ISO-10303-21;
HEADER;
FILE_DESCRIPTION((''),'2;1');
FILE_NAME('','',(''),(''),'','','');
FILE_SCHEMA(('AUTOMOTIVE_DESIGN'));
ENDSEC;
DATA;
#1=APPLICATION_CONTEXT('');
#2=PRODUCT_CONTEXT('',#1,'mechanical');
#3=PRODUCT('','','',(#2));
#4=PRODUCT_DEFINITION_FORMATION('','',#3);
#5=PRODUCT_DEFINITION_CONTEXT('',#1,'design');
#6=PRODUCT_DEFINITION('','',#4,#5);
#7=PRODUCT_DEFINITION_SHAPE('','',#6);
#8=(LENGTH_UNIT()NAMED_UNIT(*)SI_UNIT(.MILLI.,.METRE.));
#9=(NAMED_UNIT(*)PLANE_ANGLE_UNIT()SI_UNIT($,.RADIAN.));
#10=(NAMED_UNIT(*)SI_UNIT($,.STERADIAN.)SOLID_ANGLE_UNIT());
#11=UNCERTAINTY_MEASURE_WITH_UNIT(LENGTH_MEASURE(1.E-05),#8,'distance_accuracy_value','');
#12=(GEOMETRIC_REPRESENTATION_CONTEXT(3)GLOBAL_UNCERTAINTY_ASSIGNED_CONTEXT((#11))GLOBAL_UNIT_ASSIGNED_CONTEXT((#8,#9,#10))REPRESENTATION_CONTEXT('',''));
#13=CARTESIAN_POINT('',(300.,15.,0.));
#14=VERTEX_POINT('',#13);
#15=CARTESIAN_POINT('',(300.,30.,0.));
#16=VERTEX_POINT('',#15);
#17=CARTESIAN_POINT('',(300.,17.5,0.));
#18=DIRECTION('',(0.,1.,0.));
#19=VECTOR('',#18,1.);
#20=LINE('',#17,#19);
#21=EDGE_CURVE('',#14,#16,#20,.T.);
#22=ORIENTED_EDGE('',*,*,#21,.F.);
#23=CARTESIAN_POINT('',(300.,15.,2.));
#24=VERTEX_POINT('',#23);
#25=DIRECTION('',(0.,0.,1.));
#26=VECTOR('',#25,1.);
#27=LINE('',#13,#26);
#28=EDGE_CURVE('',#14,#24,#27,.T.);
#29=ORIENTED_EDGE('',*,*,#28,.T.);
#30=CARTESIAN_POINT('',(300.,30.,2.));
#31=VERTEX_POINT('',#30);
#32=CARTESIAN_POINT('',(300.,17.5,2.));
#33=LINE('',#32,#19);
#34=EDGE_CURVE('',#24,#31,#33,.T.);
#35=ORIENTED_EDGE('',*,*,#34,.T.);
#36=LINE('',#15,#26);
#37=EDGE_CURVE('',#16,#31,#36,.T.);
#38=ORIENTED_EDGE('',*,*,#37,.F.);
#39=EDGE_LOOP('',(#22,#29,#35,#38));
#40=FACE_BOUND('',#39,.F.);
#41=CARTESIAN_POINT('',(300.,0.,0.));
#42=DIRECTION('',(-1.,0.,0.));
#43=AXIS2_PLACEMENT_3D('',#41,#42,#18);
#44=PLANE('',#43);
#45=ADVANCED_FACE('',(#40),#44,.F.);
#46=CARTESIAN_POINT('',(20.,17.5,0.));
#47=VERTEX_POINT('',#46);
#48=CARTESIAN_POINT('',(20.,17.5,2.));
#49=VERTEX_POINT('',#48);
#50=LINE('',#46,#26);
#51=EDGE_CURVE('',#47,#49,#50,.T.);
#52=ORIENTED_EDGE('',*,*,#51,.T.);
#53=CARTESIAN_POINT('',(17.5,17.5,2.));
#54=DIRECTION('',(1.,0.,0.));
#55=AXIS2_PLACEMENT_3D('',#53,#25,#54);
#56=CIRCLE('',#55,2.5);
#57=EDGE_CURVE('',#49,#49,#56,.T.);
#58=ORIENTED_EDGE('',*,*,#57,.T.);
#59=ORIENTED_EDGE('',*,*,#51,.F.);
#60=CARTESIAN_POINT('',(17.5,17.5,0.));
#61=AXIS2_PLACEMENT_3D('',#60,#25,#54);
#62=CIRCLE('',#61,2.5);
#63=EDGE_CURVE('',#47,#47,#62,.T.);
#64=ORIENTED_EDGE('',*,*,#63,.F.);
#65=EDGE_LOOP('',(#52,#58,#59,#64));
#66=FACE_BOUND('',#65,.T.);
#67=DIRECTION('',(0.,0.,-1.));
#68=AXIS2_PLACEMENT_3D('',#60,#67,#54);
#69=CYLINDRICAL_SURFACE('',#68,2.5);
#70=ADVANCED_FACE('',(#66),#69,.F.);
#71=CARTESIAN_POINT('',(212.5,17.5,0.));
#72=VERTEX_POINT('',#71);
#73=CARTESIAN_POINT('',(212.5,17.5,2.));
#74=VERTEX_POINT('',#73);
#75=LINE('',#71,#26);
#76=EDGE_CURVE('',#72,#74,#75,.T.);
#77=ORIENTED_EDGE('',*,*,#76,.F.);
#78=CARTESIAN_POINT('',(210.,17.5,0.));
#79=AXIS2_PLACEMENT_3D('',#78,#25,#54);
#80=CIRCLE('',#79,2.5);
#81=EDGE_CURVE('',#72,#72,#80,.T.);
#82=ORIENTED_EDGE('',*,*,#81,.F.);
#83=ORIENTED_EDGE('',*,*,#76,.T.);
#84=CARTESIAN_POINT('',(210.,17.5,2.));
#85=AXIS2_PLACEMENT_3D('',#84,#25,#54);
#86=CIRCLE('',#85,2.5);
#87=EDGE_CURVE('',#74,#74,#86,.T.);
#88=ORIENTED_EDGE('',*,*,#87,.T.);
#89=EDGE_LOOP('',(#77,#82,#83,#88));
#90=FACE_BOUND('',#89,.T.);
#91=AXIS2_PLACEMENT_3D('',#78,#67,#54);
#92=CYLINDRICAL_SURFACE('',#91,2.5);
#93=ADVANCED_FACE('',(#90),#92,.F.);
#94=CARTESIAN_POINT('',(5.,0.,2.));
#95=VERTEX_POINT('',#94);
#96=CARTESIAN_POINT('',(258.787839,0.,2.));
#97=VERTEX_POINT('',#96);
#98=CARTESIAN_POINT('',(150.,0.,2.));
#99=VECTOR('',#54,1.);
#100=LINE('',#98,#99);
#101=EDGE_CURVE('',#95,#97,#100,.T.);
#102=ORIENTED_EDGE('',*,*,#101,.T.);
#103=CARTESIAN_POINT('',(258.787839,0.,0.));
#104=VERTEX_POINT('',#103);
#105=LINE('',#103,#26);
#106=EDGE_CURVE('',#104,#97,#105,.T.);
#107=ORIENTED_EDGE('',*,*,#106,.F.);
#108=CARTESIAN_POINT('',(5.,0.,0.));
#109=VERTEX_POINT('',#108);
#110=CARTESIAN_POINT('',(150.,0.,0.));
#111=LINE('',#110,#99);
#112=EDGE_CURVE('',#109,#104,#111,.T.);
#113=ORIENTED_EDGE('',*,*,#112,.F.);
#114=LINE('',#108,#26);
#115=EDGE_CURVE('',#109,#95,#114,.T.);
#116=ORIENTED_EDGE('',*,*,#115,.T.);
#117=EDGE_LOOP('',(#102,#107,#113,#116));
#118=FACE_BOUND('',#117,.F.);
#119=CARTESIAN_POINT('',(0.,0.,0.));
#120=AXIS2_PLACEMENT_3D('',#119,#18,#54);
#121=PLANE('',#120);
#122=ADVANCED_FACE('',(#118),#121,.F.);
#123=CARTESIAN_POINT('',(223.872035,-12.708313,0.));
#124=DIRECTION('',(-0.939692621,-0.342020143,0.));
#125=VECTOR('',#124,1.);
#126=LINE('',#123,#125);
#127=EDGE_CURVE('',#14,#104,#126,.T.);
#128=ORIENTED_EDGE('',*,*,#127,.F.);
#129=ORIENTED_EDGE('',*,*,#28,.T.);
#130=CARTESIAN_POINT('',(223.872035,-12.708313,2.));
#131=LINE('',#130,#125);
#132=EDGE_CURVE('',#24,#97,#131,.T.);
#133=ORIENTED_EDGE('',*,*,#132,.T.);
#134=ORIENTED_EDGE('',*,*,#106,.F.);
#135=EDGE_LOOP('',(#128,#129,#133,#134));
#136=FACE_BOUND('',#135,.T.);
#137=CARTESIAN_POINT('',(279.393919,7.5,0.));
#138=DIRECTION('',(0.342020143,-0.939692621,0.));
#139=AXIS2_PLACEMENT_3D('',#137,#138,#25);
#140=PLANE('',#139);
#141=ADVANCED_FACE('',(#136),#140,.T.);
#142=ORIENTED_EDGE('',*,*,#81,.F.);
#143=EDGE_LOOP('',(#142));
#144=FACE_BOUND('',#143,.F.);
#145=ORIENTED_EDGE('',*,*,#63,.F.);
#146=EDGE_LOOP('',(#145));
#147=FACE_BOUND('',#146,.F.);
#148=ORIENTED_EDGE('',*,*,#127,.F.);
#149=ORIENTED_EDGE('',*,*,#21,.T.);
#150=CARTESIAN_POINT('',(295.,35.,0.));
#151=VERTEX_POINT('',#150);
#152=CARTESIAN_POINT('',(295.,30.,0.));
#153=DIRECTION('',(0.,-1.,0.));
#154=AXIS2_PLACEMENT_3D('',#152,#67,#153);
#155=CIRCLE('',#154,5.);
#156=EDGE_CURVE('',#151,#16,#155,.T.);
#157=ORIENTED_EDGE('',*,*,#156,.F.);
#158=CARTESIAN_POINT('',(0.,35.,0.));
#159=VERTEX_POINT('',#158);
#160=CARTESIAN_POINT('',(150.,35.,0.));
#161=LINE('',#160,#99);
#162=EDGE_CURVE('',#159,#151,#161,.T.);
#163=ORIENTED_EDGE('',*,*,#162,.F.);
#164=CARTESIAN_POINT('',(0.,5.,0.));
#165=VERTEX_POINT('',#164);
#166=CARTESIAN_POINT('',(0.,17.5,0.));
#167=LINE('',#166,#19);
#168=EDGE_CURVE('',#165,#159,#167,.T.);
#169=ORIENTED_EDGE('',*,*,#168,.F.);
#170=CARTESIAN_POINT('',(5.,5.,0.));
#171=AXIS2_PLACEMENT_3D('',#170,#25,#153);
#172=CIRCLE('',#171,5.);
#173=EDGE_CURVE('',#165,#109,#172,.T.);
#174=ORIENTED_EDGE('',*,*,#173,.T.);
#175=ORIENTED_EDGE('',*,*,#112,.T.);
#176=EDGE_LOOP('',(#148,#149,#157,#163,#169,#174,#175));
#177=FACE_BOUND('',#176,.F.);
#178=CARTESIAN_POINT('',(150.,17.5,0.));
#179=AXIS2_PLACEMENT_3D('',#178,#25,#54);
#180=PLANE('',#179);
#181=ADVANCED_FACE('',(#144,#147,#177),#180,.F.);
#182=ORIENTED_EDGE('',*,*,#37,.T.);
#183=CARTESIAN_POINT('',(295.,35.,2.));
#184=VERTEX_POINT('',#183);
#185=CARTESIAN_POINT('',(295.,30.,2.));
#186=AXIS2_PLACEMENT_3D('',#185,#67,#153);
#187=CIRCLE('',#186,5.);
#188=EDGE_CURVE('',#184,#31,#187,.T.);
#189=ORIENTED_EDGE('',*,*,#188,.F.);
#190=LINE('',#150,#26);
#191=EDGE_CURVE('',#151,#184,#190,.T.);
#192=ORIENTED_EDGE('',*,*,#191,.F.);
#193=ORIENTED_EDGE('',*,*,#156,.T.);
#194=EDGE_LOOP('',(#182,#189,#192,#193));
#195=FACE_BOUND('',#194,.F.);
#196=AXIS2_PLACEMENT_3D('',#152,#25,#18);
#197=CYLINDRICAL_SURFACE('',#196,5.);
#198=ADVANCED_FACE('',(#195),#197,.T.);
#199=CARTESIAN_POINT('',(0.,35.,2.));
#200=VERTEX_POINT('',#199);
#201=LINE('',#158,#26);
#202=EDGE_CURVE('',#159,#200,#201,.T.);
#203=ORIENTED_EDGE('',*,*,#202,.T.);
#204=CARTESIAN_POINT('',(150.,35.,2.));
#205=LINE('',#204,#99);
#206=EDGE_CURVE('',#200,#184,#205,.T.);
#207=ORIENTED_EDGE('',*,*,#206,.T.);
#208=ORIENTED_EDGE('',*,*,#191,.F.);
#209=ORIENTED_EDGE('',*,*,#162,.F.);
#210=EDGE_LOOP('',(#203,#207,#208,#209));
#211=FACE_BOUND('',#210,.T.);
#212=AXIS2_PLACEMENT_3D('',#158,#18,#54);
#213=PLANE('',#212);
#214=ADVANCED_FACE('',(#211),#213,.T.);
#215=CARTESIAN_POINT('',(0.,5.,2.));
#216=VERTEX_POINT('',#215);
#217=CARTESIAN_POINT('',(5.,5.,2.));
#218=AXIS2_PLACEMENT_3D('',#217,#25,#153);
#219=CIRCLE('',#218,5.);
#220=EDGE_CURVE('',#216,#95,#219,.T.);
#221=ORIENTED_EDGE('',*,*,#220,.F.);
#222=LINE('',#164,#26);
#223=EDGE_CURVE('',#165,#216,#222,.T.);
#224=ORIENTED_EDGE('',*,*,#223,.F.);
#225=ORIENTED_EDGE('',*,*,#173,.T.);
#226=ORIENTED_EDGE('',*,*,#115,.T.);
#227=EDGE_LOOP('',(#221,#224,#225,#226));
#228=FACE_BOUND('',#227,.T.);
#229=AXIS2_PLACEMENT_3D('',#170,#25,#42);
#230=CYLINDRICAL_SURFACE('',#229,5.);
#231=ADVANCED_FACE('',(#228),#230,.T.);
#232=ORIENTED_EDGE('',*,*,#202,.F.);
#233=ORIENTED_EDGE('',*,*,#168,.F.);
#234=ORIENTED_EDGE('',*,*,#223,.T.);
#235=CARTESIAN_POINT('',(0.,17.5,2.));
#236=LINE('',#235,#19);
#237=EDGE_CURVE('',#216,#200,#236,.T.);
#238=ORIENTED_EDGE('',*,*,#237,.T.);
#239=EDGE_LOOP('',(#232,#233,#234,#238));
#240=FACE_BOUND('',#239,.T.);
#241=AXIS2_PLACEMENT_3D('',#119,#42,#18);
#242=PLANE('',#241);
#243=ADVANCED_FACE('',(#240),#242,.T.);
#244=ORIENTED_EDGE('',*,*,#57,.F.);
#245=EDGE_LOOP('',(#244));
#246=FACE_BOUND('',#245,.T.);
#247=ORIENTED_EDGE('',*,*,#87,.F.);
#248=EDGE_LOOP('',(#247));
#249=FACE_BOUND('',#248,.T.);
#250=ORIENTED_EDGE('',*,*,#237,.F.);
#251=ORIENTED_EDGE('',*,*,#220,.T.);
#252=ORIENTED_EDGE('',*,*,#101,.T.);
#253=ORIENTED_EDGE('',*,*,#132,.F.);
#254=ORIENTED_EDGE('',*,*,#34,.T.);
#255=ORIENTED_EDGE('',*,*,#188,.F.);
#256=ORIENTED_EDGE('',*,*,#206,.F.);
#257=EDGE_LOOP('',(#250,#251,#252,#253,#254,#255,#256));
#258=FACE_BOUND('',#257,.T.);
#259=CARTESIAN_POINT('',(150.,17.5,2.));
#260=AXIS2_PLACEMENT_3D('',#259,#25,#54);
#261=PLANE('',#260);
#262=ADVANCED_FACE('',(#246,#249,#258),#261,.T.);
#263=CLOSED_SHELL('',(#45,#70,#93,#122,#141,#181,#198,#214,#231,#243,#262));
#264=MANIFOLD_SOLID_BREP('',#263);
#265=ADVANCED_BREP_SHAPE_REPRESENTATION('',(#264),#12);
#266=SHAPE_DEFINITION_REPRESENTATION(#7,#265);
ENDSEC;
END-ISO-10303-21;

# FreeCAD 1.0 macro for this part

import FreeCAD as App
import Part
import Sketcher
from FreeCAD import Vector


def edges_at(feature, points):
    """Names of the edges that pass closest to the given points."""
    edges = feature.Shape.Edges
    near = lambda p: min(range(len(edges)), key=lambda i: edges[i].distToShape(Part.Vertex(*p))[0])
    return sorted({f"Edge{near(p) + 1}" for p in points})

doc = App.newDocument("Part")
body = doc.addObject("PartDesign::Body", "Body")

# Sketch on XY plane
sketch1 = body.newObject("Sketcher::SketchObject", "Sketch")
sketch1.AttachmentSupport = (doc.getObject("XY_Plane"), [""])
sketch1.MapMode = "FlatFace"
sketch1.addGeometry([
    Part.LineSegment(Vector(0, 35, 0), Vector(0, 0, 0)),  # 0
    Part.LineSegment(Vector(0, 0, 0), Vector(300, 0, 0)),  # 1
    Part.LineSegment(Vector(300, 0, 0), Vector(300, 35, 0)),  # 2
    Part.LineSegment(Vector(300, 35, 0), Vector(0, 35, 0)),  # 3
    Part.Circle(Vector(17.5, 17.5, 0), Vector(0, 0, 1), 2.5),  # 4
    Part.Circle(Vector(210, 17.5, 0), Vector(0, 0, 1), 2.5),  # 5
], False)
sketch1.addConstraint([
    Sketcher.Constraint("Coincident", 0, 2, 1, 1),
    Sketcher.Constraint("Coincident", 1, 2, 2, 1),
    Sketcher.Constraint("Coincident", 2, 2, 3, 1),
    Sketcher.Constraint("Coincident", 3, 2, 0, 1),
    Sketcher.Constraint("Vertical", 0),
    Sketcher.Constraint("Horizontal", 1),
    Sketcher.Constraint("Vertical", 2),
    Sketcher.Constraint("Horizontal", 3),
    Sketcher.Constraint("Coincident", 0, 2, -1, 1),
    Sketcher.Constraint("Equal", 4, 5),
    Sketcher.Constraint("Horizontal", 4, 3, 5, 3),
    Sketcher.Constraint("Diameter", 4, 5.0),
    Sketcher.Constraint("DistanceX", 1, 1, 1, 2, 300.0),
    Sketcher.Constraint("DistanceY", 0, 2, 0, 1, 35.0),
    Sketcher.Constraint("DistanceX", -1, 1, 5, 3, 210.0),
    Sketcher.Constraint("DistanceX", -1, 1, 4, 3, 17.5),
    Sketcher.Constraint("DistanceY", -1, 1, 4, 3, 17.5),
])
pad1 = body.newObject("PartDesign::Pad", "Pad")
pad1.Profile = sketch1
pad1.Length = 2
doc.recompute()

fillet = body.newObject("PartDesign::Fillet", "Fillet")
fillet.Base = (pad1, edges_at(pad1, [(0, 0, 1), (300, 35, 1)]))
fillet.Radius = 5
doc.recompute()

chamfer = body.newObject("PartDesign::Chamfer", "Chamfer")
chamfer.Base = (fillet, edges_at(fillet, [(300, 0, 1)]))
chamfer.ChamferType = "Two distances"
chamfer.Size = 15
chamfer.Size2 = 41.212161
chamfer.FlipDirection = True

doc.recompute()
